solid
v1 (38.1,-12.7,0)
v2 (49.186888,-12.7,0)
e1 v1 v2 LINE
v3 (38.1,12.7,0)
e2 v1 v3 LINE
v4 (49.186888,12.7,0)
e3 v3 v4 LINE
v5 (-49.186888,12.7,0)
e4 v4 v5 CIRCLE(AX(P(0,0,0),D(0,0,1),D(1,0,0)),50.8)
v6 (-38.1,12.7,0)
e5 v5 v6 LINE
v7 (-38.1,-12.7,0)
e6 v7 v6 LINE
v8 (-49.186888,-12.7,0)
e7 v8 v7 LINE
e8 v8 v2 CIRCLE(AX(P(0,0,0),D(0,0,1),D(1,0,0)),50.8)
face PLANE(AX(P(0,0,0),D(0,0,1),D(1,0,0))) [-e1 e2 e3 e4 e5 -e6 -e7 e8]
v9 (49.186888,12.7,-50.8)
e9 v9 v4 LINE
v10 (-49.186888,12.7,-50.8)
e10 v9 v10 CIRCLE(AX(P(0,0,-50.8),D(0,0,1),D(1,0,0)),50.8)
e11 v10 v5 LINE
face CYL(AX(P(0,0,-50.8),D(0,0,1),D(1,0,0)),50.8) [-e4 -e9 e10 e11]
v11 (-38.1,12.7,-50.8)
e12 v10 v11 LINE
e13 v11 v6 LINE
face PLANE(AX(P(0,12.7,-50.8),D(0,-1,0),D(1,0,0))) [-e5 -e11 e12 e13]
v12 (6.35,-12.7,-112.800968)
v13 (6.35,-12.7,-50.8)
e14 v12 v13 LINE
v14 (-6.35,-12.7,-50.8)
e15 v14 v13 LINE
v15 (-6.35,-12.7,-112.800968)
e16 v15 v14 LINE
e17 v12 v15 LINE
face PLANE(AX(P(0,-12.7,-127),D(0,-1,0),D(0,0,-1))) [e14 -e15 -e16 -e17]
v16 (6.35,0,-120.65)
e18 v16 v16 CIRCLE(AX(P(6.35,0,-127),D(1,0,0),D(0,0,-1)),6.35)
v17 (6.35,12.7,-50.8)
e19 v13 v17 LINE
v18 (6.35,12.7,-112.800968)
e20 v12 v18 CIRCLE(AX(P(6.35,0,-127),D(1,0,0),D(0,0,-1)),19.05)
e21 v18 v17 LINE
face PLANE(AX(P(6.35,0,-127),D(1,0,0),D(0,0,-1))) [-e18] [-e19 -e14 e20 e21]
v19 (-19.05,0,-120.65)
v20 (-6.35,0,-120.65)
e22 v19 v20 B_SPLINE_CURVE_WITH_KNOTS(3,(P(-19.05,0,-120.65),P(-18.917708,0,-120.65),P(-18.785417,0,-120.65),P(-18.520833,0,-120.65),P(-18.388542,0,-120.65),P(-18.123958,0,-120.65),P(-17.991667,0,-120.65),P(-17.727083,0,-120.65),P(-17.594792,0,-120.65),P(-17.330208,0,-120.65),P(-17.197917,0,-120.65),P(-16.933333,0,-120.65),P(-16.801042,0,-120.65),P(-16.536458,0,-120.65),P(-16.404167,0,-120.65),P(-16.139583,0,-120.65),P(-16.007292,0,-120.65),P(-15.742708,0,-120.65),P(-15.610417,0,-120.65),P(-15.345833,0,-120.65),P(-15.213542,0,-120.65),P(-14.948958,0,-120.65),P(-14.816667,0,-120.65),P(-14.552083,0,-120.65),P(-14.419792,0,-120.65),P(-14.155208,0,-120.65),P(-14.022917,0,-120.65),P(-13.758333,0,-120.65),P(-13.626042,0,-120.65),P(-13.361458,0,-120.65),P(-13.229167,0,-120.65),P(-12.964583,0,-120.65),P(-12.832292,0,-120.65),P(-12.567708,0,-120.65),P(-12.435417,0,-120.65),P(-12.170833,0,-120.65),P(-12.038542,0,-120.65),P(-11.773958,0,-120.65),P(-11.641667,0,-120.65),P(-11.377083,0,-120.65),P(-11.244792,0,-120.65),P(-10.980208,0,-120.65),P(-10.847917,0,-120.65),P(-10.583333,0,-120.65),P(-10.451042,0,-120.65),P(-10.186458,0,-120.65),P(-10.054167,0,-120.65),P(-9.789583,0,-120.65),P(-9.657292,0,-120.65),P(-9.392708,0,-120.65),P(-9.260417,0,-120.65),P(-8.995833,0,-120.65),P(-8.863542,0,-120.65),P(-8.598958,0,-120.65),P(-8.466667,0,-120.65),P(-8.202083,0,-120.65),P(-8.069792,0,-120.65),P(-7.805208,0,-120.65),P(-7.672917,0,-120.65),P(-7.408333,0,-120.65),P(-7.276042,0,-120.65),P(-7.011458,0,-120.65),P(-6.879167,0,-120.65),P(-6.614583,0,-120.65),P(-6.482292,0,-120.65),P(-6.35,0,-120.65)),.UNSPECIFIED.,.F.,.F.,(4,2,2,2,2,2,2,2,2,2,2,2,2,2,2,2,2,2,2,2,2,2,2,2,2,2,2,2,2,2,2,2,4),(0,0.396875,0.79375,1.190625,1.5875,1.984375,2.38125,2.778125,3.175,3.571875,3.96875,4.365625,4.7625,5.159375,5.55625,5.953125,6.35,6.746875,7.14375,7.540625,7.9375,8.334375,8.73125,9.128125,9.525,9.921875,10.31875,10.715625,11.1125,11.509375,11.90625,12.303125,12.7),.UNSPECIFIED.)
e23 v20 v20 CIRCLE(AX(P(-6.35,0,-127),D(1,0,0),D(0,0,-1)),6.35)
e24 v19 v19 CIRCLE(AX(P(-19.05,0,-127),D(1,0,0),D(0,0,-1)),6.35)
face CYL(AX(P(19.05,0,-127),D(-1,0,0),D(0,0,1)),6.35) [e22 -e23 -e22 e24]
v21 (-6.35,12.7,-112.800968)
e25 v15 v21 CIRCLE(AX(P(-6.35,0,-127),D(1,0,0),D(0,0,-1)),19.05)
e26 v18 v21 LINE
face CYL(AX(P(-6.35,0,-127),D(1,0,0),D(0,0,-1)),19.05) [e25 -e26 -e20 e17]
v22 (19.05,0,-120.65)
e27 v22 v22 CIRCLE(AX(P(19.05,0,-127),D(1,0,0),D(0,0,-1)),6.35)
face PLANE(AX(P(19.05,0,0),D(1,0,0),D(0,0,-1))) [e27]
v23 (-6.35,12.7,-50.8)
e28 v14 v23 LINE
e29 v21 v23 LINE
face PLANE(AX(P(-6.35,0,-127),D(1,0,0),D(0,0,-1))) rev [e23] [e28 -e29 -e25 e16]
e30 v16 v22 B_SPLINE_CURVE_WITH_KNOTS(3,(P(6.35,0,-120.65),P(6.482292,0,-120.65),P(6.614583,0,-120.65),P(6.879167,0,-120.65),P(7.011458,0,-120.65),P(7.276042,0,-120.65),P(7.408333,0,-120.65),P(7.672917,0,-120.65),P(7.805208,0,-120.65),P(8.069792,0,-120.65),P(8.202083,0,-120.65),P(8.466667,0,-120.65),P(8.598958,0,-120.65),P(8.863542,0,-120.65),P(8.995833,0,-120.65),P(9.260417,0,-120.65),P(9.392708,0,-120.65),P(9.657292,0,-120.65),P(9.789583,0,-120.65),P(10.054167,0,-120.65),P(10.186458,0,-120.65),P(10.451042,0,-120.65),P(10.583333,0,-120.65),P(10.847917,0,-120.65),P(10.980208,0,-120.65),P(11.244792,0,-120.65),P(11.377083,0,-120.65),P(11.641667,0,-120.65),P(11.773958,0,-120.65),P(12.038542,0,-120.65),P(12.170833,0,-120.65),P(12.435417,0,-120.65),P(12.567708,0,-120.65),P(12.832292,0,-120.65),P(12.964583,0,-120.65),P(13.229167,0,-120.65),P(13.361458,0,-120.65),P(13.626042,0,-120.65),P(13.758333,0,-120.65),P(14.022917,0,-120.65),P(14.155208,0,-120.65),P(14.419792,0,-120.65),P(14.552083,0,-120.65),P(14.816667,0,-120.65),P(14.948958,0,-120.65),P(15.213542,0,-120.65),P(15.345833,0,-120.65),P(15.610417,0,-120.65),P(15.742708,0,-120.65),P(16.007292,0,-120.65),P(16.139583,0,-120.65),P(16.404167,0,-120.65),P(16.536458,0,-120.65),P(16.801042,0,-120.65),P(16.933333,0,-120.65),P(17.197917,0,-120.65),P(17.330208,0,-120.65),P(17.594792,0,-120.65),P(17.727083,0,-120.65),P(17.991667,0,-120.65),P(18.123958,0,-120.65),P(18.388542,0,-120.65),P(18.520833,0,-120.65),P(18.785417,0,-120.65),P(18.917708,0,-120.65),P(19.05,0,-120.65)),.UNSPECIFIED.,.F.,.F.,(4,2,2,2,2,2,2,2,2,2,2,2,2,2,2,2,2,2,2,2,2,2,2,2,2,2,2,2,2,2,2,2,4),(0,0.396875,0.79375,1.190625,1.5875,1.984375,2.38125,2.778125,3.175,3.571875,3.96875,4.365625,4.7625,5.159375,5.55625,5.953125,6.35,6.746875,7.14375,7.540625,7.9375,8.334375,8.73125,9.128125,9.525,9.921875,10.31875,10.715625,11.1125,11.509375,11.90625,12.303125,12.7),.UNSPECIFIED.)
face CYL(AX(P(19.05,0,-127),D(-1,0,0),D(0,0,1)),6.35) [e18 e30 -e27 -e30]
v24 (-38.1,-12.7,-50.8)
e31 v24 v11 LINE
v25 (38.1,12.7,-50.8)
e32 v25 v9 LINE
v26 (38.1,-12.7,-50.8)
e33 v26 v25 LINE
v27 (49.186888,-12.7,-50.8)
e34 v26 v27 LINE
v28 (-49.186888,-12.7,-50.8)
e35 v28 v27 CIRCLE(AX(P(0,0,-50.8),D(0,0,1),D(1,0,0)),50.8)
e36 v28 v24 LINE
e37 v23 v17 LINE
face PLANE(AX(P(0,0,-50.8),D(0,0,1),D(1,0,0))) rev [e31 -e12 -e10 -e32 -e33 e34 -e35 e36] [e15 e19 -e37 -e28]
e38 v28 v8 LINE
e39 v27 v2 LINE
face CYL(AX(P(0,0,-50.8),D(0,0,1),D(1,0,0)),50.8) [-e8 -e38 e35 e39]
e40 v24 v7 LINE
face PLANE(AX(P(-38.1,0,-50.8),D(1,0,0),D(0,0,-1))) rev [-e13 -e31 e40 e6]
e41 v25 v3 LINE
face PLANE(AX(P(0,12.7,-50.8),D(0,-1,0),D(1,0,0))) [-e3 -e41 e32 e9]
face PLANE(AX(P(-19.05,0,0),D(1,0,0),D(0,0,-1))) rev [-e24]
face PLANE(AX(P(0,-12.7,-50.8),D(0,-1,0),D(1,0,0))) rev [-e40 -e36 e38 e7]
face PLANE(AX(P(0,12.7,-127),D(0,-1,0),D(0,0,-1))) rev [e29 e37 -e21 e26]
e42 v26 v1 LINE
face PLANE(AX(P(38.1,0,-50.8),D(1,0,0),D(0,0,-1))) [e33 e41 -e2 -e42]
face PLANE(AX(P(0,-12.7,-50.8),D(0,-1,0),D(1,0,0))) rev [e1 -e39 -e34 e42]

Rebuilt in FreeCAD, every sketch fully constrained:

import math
import FreeCAD as App
import Part
import Sketcher
from FreeCAD import Vector
Q = App.Units.Quantity

doc = App.newDocument("Part")
body = doc.addObject("PartDesign::Body", "Body")

# Sketch on XY plane
sketch1 = body.newObject("Sketcher::SketchObject", "Sketch")
sketch1.AttachmentSupport = (doc.getObject("XY_Plane"), [""])
sketch1.MapMode = "FlatFace"
sketch1.addGeometry([
    Part.LineSegment(Vector(-38, -13, 0), Vector(-49, -13, 0)),  # 0
    Part.ArcOfCircle(Part.Circle(Vector(0, 0, 0), Vector(0, 0, 1), 51), math.radians(-166), math.radians(-14)),  # 1
    Part.LineSegment(Vector(49, -13, 0), Vector(38, -13, 0)),  # 2
    Part.LineSegment(Vector(38, -13, 0), Vector(38, 13, 0)),  # 3
    Part.LineSegment(Vector(38, 13, 0), Vector(49, 13, 0)),  # 4
    Part.ArcOfCircle(Part.Circle(Vector(0, 0, 0), Vector(0, 0, 1), 51), math.radians(14), math.radians(166)),  # 5
    Part.LineSegment(Vector(-49, 13, 0), Vector(-38, 13, 0)),  # 6
    Part.LineSegment(Vector(-38, 13, 0), Vector(-38, -13, 0)),  # 7
    Part.LineSegment(Vector(6, -13, 0), Vector(-6, -13, 0)),  # 8
    Part.LineSegment(Vector(-6, -13, 0), Vector(-6, 13, 0)),  # 9
    Part.LineSegment(Vector(-6, 13, 0), Vector(6, 13, 0)),  # 10
    Part.LineSegment(Vector(6, 13, 0), Vector(6, -13, 0)),  # 11
], False)
sketch1.addConstraint([
    Sketcher.Constraint("Coincident", 0, 2, 1, 1),
    Sketcher.Constraint("Coincident", 1, 2, 2, 1),
    Sketcher.Constraint("Coincident", 2, 2, 3, 1),
    Sketcher.Constraint("Coincident", 3, 2, 4, 1),
    Sketcher.Constraint("Coincident", 4, 2, 5, 1),
    Sketcher.Constraint("Coincident", 5, 2, 6, 1),
    Sketcher.Constraint("Coincident", 6, 2, 7, 1),
    Sketcher.Constraint("Coincident", 7, 2, 0, 1),
    Sketcher.Constraint("Coincident", 8, 2, 9, 1),
    Sketcher.Constraint("Coincident", 9, 2, 10, 1),
    Sketcher.Constraint("Coincident", 10, 2, 11, 1),
    Sketcher.Constraint("Coincident", 11, 2, 8, 1),
    Sketcher.Constraint("Horizontal", 0),
    Sketcher.Constraint("Horizontal", 2),
    Sketcher.Constraint("Vertical", 3),
    Sketcher.Constraint("Horizontal", 4),
    Sketcher.Constraint("Horizontal", 6),
    Sketcher.Constraint("Vertical", 7),
    Sketcher.Constraint("Horizontal", 8),
    Sketcher.Constraint("Vertical", 9),
    Sketcher.Constraint("Horizontal", 10),
    Sketcher.Constraint("Vertical", 11),
    Sketcher.Constraint("Coincident", 1, 3, -1, 1),
    Sketcher.Constraint("Coincident", 5, 3, -1, 1),
    Sketcher.Constraint("Equal", 1, 5),
    Sketcher.Constraint("Symmetric", 2, 2, 6, 2, -1, 1),
    Sketcher.Constraint("Symmetric", 8, 2, 10, 2, -1, 1),
    Sketcher.Constraint("Horizontal", 0, 2, 1, 2),
    Sketcher.Constraint("Horizontal", 4, 2, 5, 2),
    Sketcher.Constraint("Horizontal", 7, 2, 8, 2),
    Sketcher.Constraint("Radius", 1, Q("2 in")),
    Sketcher.Constraint("DistanceY", 3, 1, 3, 2, Q("1 in")),
    Sketcher.Constraint("DistanceX", 8, 2, 8, 1, Q("0.5 in")),
    Sketcher.Constraint("DistanceX", 6, 2, 3, 2, Q("3 in")),
])
pad1 = body.newObject("PartDesign::Pad", "Pad")
pad1.Profile = sketch1
pad1.Length = Q("2 in")
pad1.Reversed = True

# Sketch on XY plane
sketch2 = body.newObject("Sketcher::SketchObject", "Sketch001")
sketch2.AttachmentSupport = (doc.getObject("XY_Plane"), [""])
sketch2.MapMode = "FlatFace"
sketch2.addGeometry([
    Part.LineSegment(Vector(-6, 13, 0), Vector(-6, -13, 0)),
    Part.LineSegment(Vector(-6, -13, 0), Vector(6, -13, 0)),
    Part.LineSegment(Vector(6, -13, 0), Vector(6, 13, 0)),
    Part.LineSegment(Vector(6, 13, 0), Vector(-6, 13, 0)),
], False)
sketch2.addConstraint([
    Sketcher.Constraint("Coincident", 0, 2, 1, 1),
    Sketcher.Constraint("Coincident", 1, 2, 2, 1),
    Sketcher.Constraint("Coincident", 2, 2, 3, 1),
    Sketcher.Constraint("Coincident", 3, 2, 0, 1),
    Sketcher.Constraint("Vertical", 0),
    Sketcher.Constraint("Horizontal", 1),
    Sketcher.Constraint("Vertical", 2),
    Sketcher.Constraint("Horizontal", 3),
    Sketcher.Constraint("Symmetric", 0, 2, 2, 2, -1, 1),
    Sketcher.Constraint("DistanceY", 0, 2, 0, 1, Q("1 in")),
    Sketcher.Constraint("DistanceX", 1, 1, 1, 2, Q("0.5 in")),
])
pad2 = body.newObject("PartDesign::Pad", "Pad001")
pad2.Profile = sketch2
pad2.Length = Q("5 in")
pad2.Reversed = True

# Sketch on YZ plane
sketch3 = body.newObject("Sketcher::SketchObject", "Sketch002")
sketch3.AttachmentSupport = (doc.getObject("YZ_Plane"), [""])
sketch3.MapMode = "FlatFace"
sketch3.AttachmentOffset = App.Placement(Vector(0, 0, 0.25 * 25.4), App.Rotation())
sketch3.addGeometry([
    Part.Circle(Vector(0, -127, 0), Vector(0, 0, 1), 19),
    Part.Circle(Vector(0, -127, 0), Vector(0, 0, 1), 6),
], False)
sketch3.addConstraint([
    Sketcher.Constraint("Coincident", 1, 3, 0, 3),
    Sketcher.Constraint("PointOnObject", 0, 3, -2),
    Sketcher.Constraint("Diameter", 0, Q("1.5 in")),
    Sketcher.Constraint("Diameter", 1, Q("0.5 in")),
    Sketcher.Constraint("DistanceY", 0, 3, -1, 1, Q("5 in")),
])
pad3 = body.newObject("PartDesign::Pad", "Pad002")
pad3.Profile = sketch3
pad3.Length = Q("0.5 in")
pad3.Reversed = True

# Sketch on YZ plane
sketch4 = body.newObject("Sketcher::SketchObject", "Sketch003")
sketch4.AttachmentSupport = (doc.getObject("YZ_Plane"), [""])
sketch4.MapMode = "FlatFace"
sketch4.addGeometry([
    Part.ArcOfCircle(Part.Circle(Vector(0, -127, 0), Vector(0, 0, 1), 6), math.radians(180), math.radians(270)),
    Part.ArcOfCircle(Part.Circle(Vector(0, -127, 0), Vector(0, 0, 1), 6), math.radians(-90), math.radians(0)),
    Part.ArcOfCircle(Part.Circle(Vector(0, -127, 0), Vector(0, 0, 1), 6), math.radians(0), math.radians(180)),
], False)
sketch4.addConstraint([
    Sketcher.Constraint("Tangent", 0, 2, 1, 1),
    Sketcher.Constraint("Tangent", 1, 2, 2, 1),
    Sketcher.Constraint("Tangent", 2, 2, 0, 1),
    Sketcher.Constraint("Symmetric", 1, 2, 2, 2, -2),
    Sketcher.Constraint("PointOnObject", 0, 2, -2),
    Sketcher.Constraint("Horizontal", 2, 3, 1, 2),
    Sketcher.Constraint("Radius", 0, Q("0.25 in")),
    Sketcher.Constraint("DistanceY", 0, 3, -1, 1, Q("5 in")),
])
pad4 = body.newObject("PartDesign::Pad", "Pad003")
pad4.Profile = sketch4
pad4.Length = Q("1.5 in")
pad4.Midplane = True

doc.recompute()
